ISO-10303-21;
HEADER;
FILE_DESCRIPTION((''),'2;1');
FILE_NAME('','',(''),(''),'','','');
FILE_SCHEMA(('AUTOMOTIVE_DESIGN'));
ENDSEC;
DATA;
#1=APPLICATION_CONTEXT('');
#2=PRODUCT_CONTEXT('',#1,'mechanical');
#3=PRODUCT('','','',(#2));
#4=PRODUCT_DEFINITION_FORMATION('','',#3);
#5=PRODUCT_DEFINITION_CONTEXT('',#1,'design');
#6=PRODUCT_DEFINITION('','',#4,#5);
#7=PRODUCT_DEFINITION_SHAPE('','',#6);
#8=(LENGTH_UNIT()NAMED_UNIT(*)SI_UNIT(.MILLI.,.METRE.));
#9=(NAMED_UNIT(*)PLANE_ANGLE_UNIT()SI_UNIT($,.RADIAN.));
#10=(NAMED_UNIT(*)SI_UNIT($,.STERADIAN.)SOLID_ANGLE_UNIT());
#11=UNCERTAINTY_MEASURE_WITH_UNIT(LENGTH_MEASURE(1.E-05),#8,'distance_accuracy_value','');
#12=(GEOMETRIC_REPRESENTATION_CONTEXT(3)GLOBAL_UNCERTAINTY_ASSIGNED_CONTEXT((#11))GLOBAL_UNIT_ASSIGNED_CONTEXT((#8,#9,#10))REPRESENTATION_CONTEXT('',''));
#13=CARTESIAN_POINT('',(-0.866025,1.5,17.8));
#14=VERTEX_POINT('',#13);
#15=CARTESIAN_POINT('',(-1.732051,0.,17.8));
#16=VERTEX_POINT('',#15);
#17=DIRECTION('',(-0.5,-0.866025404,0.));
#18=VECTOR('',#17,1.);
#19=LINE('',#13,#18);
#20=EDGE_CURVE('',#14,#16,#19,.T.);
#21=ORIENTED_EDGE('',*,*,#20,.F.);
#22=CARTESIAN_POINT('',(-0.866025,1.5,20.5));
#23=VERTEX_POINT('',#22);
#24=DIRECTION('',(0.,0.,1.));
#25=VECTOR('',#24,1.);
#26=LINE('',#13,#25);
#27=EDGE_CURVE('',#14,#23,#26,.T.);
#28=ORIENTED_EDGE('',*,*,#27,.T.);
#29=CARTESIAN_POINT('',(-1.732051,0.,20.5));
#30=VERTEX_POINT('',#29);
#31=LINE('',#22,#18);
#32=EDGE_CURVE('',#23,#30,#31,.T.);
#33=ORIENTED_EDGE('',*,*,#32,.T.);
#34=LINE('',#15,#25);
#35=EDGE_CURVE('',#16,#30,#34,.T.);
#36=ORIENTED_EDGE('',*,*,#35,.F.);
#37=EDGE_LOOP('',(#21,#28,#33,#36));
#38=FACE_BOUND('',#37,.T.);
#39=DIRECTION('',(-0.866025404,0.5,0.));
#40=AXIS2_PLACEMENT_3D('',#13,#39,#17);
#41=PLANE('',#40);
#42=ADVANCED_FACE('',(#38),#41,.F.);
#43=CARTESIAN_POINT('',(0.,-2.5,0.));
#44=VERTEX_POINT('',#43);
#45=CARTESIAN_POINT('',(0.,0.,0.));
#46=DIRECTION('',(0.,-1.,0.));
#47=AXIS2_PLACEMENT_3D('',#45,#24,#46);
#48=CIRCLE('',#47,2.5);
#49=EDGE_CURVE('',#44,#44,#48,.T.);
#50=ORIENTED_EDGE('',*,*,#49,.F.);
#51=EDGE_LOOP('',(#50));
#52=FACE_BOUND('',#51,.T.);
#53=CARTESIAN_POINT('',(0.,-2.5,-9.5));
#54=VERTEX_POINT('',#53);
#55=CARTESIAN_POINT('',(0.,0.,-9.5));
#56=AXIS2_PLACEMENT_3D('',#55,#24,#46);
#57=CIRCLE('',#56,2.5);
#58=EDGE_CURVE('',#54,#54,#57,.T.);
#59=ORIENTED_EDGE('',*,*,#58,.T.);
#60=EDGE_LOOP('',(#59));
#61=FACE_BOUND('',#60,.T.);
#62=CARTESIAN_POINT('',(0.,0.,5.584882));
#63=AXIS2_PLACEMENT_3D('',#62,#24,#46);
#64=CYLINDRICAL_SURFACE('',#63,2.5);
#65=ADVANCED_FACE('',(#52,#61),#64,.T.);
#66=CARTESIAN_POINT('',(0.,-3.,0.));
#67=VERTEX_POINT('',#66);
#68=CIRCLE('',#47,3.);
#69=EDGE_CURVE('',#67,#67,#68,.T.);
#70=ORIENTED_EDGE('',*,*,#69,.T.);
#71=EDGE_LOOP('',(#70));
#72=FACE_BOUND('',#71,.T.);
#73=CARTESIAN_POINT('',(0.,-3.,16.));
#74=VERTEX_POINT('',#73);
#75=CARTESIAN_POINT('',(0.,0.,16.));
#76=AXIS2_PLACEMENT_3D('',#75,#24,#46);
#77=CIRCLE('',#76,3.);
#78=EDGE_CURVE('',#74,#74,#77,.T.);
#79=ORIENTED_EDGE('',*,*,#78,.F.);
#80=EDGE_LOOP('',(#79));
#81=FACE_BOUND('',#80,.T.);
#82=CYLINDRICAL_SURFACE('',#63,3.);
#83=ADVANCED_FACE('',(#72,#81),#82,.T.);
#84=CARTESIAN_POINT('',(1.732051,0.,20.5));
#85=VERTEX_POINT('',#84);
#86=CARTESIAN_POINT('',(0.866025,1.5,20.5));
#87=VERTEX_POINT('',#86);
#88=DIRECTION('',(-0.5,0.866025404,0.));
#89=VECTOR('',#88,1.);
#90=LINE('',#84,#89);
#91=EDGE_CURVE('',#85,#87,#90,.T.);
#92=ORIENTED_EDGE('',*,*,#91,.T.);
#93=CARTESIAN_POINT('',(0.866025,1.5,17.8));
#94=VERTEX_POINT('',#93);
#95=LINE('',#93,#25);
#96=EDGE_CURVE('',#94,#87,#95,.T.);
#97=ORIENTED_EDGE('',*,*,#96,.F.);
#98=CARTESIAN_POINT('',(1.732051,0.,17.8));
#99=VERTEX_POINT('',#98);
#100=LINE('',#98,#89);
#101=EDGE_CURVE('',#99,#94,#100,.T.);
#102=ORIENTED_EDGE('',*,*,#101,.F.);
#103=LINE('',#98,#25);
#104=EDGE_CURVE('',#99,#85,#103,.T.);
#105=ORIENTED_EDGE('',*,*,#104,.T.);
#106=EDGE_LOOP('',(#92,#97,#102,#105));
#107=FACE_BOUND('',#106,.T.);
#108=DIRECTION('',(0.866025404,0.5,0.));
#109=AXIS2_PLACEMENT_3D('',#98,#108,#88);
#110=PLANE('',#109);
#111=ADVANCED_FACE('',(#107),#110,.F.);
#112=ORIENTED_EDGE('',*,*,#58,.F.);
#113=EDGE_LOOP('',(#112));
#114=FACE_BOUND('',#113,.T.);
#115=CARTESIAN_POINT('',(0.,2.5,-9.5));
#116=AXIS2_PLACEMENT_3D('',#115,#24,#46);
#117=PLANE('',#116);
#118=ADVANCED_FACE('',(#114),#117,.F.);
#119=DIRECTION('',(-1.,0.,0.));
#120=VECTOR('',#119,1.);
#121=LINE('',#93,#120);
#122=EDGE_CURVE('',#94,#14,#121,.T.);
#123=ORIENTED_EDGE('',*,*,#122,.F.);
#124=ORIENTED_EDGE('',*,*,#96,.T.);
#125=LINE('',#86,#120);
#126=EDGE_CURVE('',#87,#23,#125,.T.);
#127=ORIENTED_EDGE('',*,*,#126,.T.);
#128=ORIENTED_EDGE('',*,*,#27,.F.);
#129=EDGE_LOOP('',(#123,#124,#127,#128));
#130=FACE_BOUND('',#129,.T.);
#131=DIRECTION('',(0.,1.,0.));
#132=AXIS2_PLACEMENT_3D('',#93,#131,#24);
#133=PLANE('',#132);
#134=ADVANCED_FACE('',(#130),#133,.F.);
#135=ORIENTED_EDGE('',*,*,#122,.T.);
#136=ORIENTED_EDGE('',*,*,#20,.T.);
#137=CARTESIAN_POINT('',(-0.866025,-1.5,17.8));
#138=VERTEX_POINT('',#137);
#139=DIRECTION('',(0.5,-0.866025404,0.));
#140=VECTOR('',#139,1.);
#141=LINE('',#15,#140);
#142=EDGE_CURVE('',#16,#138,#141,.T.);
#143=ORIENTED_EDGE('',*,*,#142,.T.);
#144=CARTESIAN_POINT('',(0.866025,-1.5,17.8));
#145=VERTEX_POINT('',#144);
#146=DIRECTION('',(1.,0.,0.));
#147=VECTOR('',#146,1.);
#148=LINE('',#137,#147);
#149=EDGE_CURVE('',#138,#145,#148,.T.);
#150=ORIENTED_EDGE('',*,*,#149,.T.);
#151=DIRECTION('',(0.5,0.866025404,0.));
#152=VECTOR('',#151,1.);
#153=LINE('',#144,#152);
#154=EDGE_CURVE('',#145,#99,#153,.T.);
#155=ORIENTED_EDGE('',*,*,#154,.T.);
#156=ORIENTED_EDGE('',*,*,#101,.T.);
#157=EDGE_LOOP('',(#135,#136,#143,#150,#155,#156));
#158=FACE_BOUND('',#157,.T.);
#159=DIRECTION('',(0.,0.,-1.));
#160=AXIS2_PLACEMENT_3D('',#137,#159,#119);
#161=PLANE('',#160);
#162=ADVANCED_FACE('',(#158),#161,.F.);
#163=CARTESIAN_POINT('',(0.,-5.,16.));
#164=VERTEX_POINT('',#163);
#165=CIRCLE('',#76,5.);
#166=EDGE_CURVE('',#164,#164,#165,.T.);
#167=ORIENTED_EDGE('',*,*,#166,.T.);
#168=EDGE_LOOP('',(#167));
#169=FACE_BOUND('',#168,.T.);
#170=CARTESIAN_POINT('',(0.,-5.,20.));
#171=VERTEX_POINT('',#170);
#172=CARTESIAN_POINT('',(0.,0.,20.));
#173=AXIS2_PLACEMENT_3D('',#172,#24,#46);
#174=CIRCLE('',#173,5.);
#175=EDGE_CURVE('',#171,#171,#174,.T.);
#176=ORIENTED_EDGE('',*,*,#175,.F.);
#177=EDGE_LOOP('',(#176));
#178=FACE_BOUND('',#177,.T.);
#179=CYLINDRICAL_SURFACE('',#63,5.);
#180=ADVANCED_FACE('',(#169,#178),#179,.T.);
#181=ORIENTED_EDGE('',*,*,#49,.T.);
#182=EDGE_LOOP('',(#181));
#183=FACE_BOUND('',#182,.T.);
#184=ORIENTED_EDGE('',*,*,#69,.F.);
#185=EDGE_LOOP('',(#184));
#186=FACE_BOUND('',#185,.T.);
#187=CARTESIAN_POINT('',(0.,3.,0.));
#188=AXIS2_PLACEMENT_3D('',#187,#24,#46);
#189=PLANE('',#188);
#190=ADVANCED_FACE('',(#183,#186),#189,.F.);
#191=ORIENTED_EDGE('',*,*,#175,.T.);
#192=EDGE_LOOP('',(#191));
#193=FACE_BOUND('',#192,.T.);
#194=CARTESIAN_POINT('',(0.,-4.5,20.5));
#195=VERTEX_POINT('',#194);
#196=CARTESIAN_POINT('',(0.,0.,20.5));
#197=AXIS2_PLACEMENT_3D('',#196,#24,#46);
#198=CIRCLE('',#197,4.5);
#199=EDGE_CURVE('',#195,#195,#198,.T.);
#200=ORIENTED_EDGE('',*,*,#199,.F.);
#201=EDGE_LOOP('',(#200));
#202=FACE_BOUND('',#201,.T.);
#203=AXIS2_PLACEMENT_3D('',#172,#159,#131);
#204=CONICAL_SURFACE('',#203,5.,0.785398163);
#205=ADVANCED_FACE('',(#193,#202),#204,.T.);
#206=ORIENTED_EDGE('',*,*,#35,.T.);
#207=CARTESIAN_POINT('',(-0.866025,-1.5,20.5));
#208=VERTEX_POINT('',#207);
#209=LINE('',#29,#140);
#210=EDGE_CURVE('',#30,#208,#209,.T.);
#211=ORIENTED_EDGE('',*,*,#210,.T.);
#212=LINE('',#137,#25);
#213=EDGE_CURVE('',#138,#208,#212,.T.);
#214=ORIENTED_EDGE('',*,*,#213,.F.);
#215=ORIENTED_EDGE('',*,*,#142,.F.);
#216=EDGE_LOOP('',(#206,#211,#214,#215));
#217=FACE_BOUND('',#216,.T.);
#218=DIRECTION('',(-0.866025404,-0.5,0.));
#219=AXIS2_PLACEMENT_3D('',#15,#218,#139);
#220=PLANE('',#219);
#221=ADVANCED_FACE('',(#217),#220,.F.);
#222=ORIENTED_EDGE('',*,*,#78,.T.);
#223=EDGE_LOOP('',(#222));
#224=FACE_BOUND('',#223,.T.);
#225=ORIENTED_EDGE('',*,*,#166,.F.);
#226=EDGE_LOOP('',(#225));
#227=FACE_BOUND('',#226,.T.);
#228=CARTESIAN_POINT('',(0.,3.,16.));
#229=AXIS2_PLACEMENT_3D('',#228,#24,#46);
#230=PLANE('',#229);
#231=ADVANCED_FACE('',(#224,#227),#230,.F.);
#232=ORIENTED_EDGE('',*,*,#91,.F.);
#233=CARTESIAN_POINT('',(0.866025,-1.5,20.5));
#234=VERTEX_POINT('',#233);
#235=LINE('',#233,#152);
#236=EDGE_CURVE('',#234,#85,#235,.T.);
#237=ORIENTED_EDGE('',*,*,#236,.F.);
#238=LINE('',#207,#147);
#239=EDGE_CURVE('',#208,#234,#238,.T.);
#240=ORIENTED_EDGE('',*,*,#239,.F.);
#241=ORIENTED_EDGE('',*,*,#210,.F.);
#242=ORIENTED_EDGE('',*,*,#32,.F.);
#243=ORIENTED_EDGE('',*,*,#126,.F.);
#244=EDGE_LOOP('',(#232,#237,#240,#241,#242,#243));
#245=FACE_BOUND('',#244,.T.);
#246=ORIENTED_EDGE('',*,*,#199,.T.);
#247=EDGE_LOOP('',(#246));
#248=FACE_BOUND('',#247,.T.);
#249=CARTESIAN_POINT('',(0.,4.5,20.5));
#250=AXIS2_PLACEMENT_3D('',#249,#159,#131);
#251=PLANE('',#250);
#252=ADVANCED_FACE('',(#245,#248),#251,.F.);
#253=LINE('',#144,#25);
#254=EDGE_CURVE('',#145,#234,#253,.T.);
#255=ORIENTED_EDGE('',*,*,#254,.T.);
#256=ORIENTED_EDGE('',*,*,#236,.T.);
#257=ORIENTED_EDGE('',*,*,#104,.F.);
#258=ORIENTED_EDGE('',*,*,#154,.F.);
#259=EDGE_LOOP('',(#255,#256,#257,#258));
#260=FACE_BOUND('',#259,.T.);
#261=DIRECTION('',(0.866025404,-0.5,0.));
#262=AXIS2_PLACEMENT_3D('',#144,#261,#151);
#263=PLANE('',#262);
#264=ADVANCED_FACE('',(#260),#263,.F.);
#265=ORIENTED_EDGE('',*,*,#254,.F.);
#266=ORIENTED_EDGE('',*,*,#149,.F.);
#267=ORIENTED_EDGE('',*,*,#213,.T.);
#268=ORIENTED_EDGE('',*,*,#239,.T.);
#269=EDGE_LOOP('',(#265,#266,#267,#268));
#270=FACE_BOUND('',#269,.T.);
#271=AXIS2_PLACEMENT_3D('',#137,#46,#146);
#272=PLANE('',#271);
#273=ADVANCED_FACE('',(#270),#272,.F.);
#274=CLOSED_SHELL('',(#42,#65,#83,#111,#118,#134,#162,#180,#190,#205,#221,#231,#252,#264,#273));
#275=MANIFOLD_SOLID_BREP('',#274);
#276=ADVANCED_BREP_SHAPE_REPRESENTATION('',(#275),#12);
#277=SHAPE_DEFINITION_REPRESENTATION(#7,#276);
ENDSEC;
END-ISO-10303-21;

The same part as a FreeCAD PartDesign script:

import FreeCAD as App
import Part
import Sketcher
from FreeCAD import Vector
Q = App.Units.Quantity

doc = App.newDocument("Part")
params = doc.addObject("Spreadsheet::Sheet", "Params")
for row, (alias, value) in enumerate([
    ("sketch1_width", "2 mm"),
    ("sketch1_height", "4 mm"),
    ("sketch1_height2", "30 mm"),
    ("sketch1_height3", "16 mm"),
    ("sketch1_width2", "4.5 mm"),
    ("revolution_angle", "360 deg"),
    ("pocket1_length", "2.7 mm"),
], start=1):
    params.set(f"A{row}", alias)
    params.set(f"B{row}", "=" + value)
    params.setAlias(f"B{row}", alias)

body = doc.addObject("PartDesign::Body", "Body")

sketch1 = body.newObject("Sketcher::SketchObject", "Sketch")
sketch1.AttachmentSupport = (doc.getObject("YZ_Plane"), [""])
sketch1.MapMode = "FlatFace"
sketch1.addGeometry(Part.LineSegment(Vector(3, 16, 0), Vector(5, 16, 0)), False)
sketch1.addGeometry(Part.LineSegment(Vector(5, 16, 0), Vector(5, 20, 0)), False)
sketch1.addGeometry(Part.LineSegment(Vector(5, 20, 0), Vector(4.5, 20.5, 0)), False)
sketch1.addGeometry(Part.LineSegment(Vector(4.5, 20.5, 0), Vector(0, 20.5, 0)), False)
sketch1.addGeometry(Part.LineSegment(Vector(0, 20.5, 0), Vector(0, -9.5, 0)), False)
sketch1.addGeometry(Part.LineSegment(Vector(0, -9.5, 0), Vector(2.5, -9.5, 0)), False)
sketch1.addGeometry(Part.LineSegment(Vector(2.5, -9.5, 0), Vector(2.5, 0, 0)), False)
sketch1.addGeometry(Part.LineSegment(Vector(2.5, 0, 0), Vector(3, 0, 0)), False)
sketch1.addGeometry(Part.LineSegment(Vector(3, 0, 0), Vector(3, 16, 0)), False)
sketch1.addConstraint(Sketcher.Constraint("Coincident", 0, 2, 1, 1))
sketch1.addConstraint(Sketcher.Constraint("Coincident", 1, 2, 2, 1))
sketch1.addConstraint(Sketcher.Constraint("Coincident", 2, 2, 3, 1))
sketch1.addConstraint(Sketcher.Constraint("Coincident", 3, 2, 4, 1))
sketch1.addConstraint(Sketcher.Constraint("Coincident", 4, 2, 5, 1))
sketch1.addConstraint(Sketcher.Constraint("Coincident", 5, 2, 6, 1))
sketch1.addConstraint(Sketcher.Constraint("Coincident", 6, 2, 7, 1))
sketch1.addConstraint(Sketcher.Constraint("Coincident", 7, 2, 8, 1))
sketch1.addConstraint(Sketcher.Constraint("Coincident", 8, 2, 0, 1))
sketch1.addConstraint(Sketcher.Constraint("Horizontal", 0))
sketch1.addConstraint(Sketcher.Constraint("Vertical", 1))
sketch1.addConstraint(Sketcher.Constraint("Horizontal", 3))
sketch1.addConstraint(Sketcher.Constraint("Vertical", 4))
sketch1.addConstraint(Sketcher.Constraint("Horizontal", 5))
sketch1.addConstraint(Sketcher.Constraint("Vertical", 6))
sketch1.addConstraint(Sketcher.Constraint("Horizontal", 7))
sketch1.addConstraint(Sketcher.Constraint("Vertical", 8))
sketch1.addConstraint(Sketcher.Constraint("PointOnObject", 3, 2, -2))
sketch1.addConstraint(Sketcher.Constraint("PointOnObject", 6, 2, -1))
sketch1.addConstraint(Sketcher.Constraint("DistanceX", 0, 1, 0, 2, 2.0))
sketch1.addConstraint(Sketcher.Constraint("DistanceY", 1, 1, 1, 2, 4.0))
sketch1.addConstraint(Sketcher.Constraint("DistanceY", 4, 2, 4, 1, 30.0))
sketch1.addConstraint(Sketcher.Constraint("DistanceY", 8, 1, 8, 2, 16.0))
sketch1.addConstraint(Sketcher.Constraint("Angle", 2, Q("135 deg")))
sketch1.addConstraint(Sketcher.Constraint("DistanceX", 3, 2, 3, 1, 4.5))
sketch1.addConstraint(Sketcher.Constraint("DistanceX", 5, 1, 5, 2, 2.5))
sketch1.addConstraint(Sketcher.Constraint("DistanceX", 7, 1, 7, 2, 0.5))
sketch1.setExpression("Constraints[19]", "Params.sketch1_width")
sketch1.setExpression("Constraints[20]", "Params.sketch1_height")
sketch1.setExpression("Constraints[21]", "Params.sketch1_height2")
sketch1.setExpression("Constraints[22]", "Params.sketch1_height3")
sketch1.setExpression("Constraints[24]", "Params.sketch1_width2")
revolution = body.newObject("PartDesign::Revolution", "Revolution")
revolution.Profile = sketch1
revolution.ReferenceAxis = (sketch1, ["V_Axis"])
revolution.setExpression("Angle", "Params.revolution_angle")

sketch2 = body.newObject("Sketcher::SketchObject", "Sketch001")
sketch2.AttachmentSupport = (doc.getObject("XY_Plane"), [""])
sketch2.MapMode = "FlatFace"
sketch2.AttachmentOffset = App.Placement(Vector(0, 0, 20.5), App.Rotation())
sketch2.addGeometry(Part.LineSegment(Vector(0.9, -1.5, 0), Vector(1.7, 0, 0)), False)
sketch2.addGeometry(Part.LineSegment(Vector(1.7, 0, 0), Vector(0.9, 1.5, 0)), False)
sketch2.addGeometry(Part.LineSegment(Vector(0.9, 1.5, 0), Vector(-0.9, 1.5, 0)), False)
sketch2.addGeometry(Part.LineSegment(Vector(-0.9, 1.5, 0), Vector(-1.7, 0, 0)), False)
sketch2.addGeometry(Part.LineSegment(Vector(-1.7, 0, 0), Vector(-0.9, -1.5, 0)), False)
sketch2.addGeometry(Part.LineSegment(Vector(-0.9, -1.5, 0), Vector(0.9, -1.5, 0)), False)
sketch2.addConstraint(Sketcher.Constraint("Coincident", 0, 2, 1, 1))
sketch2.addConstraint(Sketcher.Constraint("Coincident", 1, 2, 2, 1))
sketch2.addConstraint(Sketcher.Constraint("Coincident", 2, 2, 3, 1))
sketch2.addConstraint(Sketcher.Constraint("Coincident", 3, 2, 4, 1))
sketch2.addConstraint(Sketcher.Constraint("Coincident", 4, 2, 5, 1))
sketch2.addConstraint(Sketcher.Constraint("Coincident", 5, 2, 0, 1))
sketch2.addConstraint(Sketcher.Constraint("Horizontal", 2))
sketch2.addConstraint(Sketcher.Constraint("Horizontal", 5))
sketch2.addConstraint(Sketcher.Constraint("Symmetric", 0, 2, 3, 2, -1, 1))
sketch2.addConstraint(Sketcher.Constraint("Symmetric", 1, 2, 4, 2, -1, 1))
sketch2.addConstraint(Sketcher.Constraint("PointOnObject", 0, 2, -1))
sketch2.addConstraint(Sketcher.Constraint("Parallel", 0, 3))
sketch2.addConstraint(Sketcher.Constraint("Vertical", 2, 2, 4, 2))
sketch2.addConstraint(Sketcher.Constraint("Angle", 0, Q("60 deg")))
sketch2.addConstraint(Sketcher.Constraint("DistanceY", 4, 2, 2, 2, 3.0))
sketch2.addConstraint(Sketcher.Constraint("DistanceX", 2, 2, 2, 1, 1.732051))
pocket1 = body.newObject("PartDesign::Pocket", "Pocket")
pocket1.Profile = sketch2
pocket1.setExpression("Length", "Params.pocket1_length")

doc.recompute()
